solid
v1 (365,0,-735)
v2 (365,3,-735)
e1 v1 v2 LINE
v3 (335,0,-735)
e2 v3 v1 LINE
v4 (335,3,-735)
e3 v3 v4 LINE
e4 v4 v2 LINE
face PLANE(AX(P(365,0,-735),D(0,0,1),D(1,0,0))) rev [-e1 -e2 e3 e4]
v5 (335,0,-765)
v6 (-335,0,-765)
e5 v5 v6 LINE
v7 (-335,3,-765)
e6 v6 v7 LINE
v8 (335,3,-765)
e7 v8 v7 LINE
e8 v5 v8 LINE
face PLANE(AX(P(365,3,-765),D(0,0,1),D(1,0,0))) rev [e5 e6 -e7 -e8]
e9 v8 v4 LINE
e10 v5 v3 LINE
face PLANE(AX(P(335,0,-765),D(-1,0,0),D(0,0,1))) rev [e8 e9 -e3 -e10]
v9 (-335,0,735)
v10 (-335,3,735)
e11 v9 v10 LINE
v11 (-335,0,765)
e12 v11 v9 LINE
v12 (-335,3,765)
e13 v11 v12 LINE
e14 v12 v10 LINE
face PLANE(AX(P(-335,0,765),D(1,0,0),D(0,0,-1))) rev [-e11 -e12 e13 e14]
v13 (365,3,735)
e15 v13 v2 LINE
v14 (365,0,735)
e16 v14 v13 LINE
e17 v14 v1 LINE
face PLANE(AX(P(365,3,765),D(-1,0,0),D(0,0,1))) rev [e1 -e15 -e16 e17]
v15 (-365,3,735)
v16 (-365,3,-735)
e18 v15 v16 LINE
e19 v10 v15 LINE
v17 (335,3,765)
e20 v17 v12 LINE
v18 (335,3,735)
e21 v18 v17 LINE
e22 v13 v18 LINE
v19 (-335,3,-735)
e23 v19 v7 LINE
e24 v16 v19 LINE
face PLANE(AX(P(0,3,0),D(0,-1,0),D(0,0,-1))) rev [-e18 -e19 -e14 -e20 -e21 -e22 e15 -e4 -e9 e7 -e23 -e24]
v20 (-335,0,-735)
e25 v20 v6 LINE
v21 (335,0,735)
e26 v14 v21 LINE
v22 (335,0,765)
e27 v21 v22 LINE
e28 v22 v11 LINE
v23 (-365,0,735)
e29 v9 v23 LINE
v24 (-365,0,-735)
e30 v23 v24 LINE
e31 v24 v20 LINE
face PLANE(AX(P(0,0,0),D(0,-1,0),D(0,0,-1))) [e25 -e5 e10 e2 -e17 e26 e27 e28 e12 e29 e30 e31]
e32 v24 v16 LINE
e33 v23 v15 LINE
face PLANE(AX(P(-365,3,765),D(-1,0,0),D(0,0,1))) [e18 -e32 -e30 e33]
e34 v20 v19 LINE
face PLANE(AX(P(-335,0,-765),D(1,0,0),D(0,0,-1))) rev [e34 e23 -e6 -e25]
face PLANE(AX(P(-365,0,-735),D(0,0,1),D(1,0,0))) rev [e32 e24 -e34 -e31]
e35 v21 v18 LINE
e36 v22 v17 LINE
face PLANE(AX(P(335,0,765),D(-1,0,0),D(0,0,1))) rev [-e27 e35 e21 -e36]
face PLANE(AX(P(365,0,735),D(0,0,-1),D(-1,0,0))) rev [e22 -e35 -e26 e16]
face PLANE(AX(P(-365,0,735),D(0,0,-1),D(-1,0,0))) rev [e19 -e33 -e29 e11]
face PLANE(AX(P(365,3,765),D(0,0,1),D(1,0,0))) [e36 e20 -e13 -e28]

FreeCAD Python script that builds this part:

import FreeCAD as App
import Part
import Sketcher
Q = App.Units.Quantity


def add_polygon(sketch, points):
    """Adds a closed chain of lines whose ends are joined by coincident constraints."""
    first, n = sketch.GeometryCount, len(points)
    for a, b in zip(points, points[1:] + points[:1]):
        sketch.addGeometry(Part.LineSegment(App.Vector(*a, 0), App.Vector(*b, 0)), False)
    for i in range(n):
        sketch.addConstraint(Sketcher.Constraint("Coincident", first + i, 2, first + (i + 1) % n, 1))

doc = App.newDocument("Part")
params = doc.addObject("Spreadsheet::Sheet", "Params")
for row, (alias, value) in enumerate([
    ("sketch1_width", "730 mm"),
    ("sketch1_height", "1530 mm"),
    ("pad1_length", "3 mm"),
    ("sketch2_width", "30 mm"),
], start=1):
    params.set(f"A{row}", alias)
    params.set(f"B{row}", "=" + value)
    params.setAlias(f"B{row}", alias)

body = doc.addObject("PartDesign::Body", "Body")

sketch1 = body.newObject("Sketcher::SketchObject", "Sketch")
sketch1.AttachmentSupport = (doc.getObject("XZ_Plane"), [""])
sketch1.MapMode = "FlatFace"
add_polygon(sketch1, [(-365, -765), (-365, 765), (365, 765), (365, -765)])
sketch1.addConstraint(Sketcher.Constraint("Vertical", 0))
sketch1.addConstraint(Sketcher.Constraint("Horizontal", 1))
sketch1.addConstraint(Sketcher.Constraint("Vertical", 2))
sketch1.addConstraint(Sketcher.Constraint("Horizontal", 3))
sketch1.addConstraint(Sketcher.Constraint("Symmetric", 0, 2, 2, 2, -1, 1))
sketch1.addConstraint(Sketcher.Constraint("DistanceX", 1, 1, 1, 2, Q("730 mm")))
sketch1.addConstraint(Sketcher.Constraint("DistanceY", 0, 1, 0, 2, Q("1530 mm")))
sketch1.setExpression("Constraints[9]", "Params.sketch1_width")
sketch1.setExpression("Constraints[10]", "Params.sketch1_height")
pad1 = body.newObject("PartDesign::Pad", "Pad")
pad1.Profile = sketch1
pad1.setExpression("Length", "Params.pad1_length")
pad1.Reversed = True

sketch2 = body.newObject("Sketcher::SketchObject", "Sketch001")
sketch2.AttachmentSupport = (doc.getObject("XZ_Plane"), [""])
sketch2.MapMode = "FlatFace"
sketch2.AttachmentOffset = App.Placement(App.Vector(0, 0, -3), App.Rotation())
add_polygon(sketch2, [(-365, -765), (-365, -735), (-335, -735), (-335, -765)])
add_polygon(sketch2, [(335, -765), (335, -735), (365, -735), (365, -765)])
add_polygon(sketch2, [(335, 735), (335, 765), (365, 765), (365, 735)])
add_polygon(sketch2, [(-365, 735), (-365, 765), (-335, 765), (-335, 735)])
sketch2.addConstraint(Sketcher.Constraint("Vertical", 0))
sketch2.addConstraint(Sketcher.Constraint("Horizontal", 1))
sketch2.addConstraint(Sketcher.Constraint("Vertical", 2))
sketch2.addConstraint(Sketcher.Constraint("Horizontal", 3))
sketch2.addConstraint(Sketcher.Constraint("Vertical", 4))
sketch2.addConstraint(Sketcher.Constraint("Horizontal", 5))
sketch2.addConstraint(Sketcher.Constraint("Vertical", 6))
sketch2.addConstraint(Sketcher.Constraint("Horizontal", 7))
sketch2.addConstraint(Sketcher.Constraint("Vertical", 8))
sketch2.addConstraint(Sketcher.Constraint("Horizontal", 9))
sketch2.addConstraint(Sketcher.Constraint("Vertical", 10))
sketch2.addConstraint(Sketcher.Constraint("Horizontal", 11))
sketch2.addConstraint(Sketcher.Constraint("Vertical", 12))
sketch2.addConstraint(Sketcher.Constraint("Horizontal", 13))
sketch2.addConstraint(Sketcher.Constraint("Vertical", 14))
sketch2.addConstraint(Sketcher.Constraint("Horizontal", 15))
sketch2.addConstraint(Sketcher.Constraint("Symmetric", 2, 2, 8, 2, -1, 1))
sketch2.addConstraint(Sketcher.Constraint("Symmetric", 0, 2, 10, 2, -1, 1))
sketch2.addConstraint(Sketcher.Constraint("Symmetric", 6, 2, 12, 2, -1, 1))
sketch2.addConstraint(Sketcher.Constraint("Symmetric", 4, 2, 14, 2, -1, 1))
sketch2.addConstraint(Sketcher.Constraint("Symmetric", 1, 2, 4, 2, -2))
sketch2.addConstraint(Sketcher.Constraint("Symmetric", 3, 2, 6, 2, -2))
sketch2.addConstraint(Sketcher.Constraint("Equal", 15, 0))
sketch2.addConstraint(Sketcher.Constraint("DistanceX", 1, 1, 1, 2, Q("30 mm")))
sketch2.addConstraint(Sketcher.Constraint("DistanceX", 0, 2, -1, 1, Q("365 mm")))
sketch2.addConstraint(Sketcher.Constraint("DistanceY", 0, 2, -1, 1, Q("735 mm")))
sketch2.setExpression("Constraints[39]", "Params.sketch2_width")
pocket1 = body.newObject("PartDesign::Pocket", "Pocket")
pocket1.Profile = sketch2
pocket1.Type = "ThroughAll"
pocket1.Reversed = True

doc.recompute()
